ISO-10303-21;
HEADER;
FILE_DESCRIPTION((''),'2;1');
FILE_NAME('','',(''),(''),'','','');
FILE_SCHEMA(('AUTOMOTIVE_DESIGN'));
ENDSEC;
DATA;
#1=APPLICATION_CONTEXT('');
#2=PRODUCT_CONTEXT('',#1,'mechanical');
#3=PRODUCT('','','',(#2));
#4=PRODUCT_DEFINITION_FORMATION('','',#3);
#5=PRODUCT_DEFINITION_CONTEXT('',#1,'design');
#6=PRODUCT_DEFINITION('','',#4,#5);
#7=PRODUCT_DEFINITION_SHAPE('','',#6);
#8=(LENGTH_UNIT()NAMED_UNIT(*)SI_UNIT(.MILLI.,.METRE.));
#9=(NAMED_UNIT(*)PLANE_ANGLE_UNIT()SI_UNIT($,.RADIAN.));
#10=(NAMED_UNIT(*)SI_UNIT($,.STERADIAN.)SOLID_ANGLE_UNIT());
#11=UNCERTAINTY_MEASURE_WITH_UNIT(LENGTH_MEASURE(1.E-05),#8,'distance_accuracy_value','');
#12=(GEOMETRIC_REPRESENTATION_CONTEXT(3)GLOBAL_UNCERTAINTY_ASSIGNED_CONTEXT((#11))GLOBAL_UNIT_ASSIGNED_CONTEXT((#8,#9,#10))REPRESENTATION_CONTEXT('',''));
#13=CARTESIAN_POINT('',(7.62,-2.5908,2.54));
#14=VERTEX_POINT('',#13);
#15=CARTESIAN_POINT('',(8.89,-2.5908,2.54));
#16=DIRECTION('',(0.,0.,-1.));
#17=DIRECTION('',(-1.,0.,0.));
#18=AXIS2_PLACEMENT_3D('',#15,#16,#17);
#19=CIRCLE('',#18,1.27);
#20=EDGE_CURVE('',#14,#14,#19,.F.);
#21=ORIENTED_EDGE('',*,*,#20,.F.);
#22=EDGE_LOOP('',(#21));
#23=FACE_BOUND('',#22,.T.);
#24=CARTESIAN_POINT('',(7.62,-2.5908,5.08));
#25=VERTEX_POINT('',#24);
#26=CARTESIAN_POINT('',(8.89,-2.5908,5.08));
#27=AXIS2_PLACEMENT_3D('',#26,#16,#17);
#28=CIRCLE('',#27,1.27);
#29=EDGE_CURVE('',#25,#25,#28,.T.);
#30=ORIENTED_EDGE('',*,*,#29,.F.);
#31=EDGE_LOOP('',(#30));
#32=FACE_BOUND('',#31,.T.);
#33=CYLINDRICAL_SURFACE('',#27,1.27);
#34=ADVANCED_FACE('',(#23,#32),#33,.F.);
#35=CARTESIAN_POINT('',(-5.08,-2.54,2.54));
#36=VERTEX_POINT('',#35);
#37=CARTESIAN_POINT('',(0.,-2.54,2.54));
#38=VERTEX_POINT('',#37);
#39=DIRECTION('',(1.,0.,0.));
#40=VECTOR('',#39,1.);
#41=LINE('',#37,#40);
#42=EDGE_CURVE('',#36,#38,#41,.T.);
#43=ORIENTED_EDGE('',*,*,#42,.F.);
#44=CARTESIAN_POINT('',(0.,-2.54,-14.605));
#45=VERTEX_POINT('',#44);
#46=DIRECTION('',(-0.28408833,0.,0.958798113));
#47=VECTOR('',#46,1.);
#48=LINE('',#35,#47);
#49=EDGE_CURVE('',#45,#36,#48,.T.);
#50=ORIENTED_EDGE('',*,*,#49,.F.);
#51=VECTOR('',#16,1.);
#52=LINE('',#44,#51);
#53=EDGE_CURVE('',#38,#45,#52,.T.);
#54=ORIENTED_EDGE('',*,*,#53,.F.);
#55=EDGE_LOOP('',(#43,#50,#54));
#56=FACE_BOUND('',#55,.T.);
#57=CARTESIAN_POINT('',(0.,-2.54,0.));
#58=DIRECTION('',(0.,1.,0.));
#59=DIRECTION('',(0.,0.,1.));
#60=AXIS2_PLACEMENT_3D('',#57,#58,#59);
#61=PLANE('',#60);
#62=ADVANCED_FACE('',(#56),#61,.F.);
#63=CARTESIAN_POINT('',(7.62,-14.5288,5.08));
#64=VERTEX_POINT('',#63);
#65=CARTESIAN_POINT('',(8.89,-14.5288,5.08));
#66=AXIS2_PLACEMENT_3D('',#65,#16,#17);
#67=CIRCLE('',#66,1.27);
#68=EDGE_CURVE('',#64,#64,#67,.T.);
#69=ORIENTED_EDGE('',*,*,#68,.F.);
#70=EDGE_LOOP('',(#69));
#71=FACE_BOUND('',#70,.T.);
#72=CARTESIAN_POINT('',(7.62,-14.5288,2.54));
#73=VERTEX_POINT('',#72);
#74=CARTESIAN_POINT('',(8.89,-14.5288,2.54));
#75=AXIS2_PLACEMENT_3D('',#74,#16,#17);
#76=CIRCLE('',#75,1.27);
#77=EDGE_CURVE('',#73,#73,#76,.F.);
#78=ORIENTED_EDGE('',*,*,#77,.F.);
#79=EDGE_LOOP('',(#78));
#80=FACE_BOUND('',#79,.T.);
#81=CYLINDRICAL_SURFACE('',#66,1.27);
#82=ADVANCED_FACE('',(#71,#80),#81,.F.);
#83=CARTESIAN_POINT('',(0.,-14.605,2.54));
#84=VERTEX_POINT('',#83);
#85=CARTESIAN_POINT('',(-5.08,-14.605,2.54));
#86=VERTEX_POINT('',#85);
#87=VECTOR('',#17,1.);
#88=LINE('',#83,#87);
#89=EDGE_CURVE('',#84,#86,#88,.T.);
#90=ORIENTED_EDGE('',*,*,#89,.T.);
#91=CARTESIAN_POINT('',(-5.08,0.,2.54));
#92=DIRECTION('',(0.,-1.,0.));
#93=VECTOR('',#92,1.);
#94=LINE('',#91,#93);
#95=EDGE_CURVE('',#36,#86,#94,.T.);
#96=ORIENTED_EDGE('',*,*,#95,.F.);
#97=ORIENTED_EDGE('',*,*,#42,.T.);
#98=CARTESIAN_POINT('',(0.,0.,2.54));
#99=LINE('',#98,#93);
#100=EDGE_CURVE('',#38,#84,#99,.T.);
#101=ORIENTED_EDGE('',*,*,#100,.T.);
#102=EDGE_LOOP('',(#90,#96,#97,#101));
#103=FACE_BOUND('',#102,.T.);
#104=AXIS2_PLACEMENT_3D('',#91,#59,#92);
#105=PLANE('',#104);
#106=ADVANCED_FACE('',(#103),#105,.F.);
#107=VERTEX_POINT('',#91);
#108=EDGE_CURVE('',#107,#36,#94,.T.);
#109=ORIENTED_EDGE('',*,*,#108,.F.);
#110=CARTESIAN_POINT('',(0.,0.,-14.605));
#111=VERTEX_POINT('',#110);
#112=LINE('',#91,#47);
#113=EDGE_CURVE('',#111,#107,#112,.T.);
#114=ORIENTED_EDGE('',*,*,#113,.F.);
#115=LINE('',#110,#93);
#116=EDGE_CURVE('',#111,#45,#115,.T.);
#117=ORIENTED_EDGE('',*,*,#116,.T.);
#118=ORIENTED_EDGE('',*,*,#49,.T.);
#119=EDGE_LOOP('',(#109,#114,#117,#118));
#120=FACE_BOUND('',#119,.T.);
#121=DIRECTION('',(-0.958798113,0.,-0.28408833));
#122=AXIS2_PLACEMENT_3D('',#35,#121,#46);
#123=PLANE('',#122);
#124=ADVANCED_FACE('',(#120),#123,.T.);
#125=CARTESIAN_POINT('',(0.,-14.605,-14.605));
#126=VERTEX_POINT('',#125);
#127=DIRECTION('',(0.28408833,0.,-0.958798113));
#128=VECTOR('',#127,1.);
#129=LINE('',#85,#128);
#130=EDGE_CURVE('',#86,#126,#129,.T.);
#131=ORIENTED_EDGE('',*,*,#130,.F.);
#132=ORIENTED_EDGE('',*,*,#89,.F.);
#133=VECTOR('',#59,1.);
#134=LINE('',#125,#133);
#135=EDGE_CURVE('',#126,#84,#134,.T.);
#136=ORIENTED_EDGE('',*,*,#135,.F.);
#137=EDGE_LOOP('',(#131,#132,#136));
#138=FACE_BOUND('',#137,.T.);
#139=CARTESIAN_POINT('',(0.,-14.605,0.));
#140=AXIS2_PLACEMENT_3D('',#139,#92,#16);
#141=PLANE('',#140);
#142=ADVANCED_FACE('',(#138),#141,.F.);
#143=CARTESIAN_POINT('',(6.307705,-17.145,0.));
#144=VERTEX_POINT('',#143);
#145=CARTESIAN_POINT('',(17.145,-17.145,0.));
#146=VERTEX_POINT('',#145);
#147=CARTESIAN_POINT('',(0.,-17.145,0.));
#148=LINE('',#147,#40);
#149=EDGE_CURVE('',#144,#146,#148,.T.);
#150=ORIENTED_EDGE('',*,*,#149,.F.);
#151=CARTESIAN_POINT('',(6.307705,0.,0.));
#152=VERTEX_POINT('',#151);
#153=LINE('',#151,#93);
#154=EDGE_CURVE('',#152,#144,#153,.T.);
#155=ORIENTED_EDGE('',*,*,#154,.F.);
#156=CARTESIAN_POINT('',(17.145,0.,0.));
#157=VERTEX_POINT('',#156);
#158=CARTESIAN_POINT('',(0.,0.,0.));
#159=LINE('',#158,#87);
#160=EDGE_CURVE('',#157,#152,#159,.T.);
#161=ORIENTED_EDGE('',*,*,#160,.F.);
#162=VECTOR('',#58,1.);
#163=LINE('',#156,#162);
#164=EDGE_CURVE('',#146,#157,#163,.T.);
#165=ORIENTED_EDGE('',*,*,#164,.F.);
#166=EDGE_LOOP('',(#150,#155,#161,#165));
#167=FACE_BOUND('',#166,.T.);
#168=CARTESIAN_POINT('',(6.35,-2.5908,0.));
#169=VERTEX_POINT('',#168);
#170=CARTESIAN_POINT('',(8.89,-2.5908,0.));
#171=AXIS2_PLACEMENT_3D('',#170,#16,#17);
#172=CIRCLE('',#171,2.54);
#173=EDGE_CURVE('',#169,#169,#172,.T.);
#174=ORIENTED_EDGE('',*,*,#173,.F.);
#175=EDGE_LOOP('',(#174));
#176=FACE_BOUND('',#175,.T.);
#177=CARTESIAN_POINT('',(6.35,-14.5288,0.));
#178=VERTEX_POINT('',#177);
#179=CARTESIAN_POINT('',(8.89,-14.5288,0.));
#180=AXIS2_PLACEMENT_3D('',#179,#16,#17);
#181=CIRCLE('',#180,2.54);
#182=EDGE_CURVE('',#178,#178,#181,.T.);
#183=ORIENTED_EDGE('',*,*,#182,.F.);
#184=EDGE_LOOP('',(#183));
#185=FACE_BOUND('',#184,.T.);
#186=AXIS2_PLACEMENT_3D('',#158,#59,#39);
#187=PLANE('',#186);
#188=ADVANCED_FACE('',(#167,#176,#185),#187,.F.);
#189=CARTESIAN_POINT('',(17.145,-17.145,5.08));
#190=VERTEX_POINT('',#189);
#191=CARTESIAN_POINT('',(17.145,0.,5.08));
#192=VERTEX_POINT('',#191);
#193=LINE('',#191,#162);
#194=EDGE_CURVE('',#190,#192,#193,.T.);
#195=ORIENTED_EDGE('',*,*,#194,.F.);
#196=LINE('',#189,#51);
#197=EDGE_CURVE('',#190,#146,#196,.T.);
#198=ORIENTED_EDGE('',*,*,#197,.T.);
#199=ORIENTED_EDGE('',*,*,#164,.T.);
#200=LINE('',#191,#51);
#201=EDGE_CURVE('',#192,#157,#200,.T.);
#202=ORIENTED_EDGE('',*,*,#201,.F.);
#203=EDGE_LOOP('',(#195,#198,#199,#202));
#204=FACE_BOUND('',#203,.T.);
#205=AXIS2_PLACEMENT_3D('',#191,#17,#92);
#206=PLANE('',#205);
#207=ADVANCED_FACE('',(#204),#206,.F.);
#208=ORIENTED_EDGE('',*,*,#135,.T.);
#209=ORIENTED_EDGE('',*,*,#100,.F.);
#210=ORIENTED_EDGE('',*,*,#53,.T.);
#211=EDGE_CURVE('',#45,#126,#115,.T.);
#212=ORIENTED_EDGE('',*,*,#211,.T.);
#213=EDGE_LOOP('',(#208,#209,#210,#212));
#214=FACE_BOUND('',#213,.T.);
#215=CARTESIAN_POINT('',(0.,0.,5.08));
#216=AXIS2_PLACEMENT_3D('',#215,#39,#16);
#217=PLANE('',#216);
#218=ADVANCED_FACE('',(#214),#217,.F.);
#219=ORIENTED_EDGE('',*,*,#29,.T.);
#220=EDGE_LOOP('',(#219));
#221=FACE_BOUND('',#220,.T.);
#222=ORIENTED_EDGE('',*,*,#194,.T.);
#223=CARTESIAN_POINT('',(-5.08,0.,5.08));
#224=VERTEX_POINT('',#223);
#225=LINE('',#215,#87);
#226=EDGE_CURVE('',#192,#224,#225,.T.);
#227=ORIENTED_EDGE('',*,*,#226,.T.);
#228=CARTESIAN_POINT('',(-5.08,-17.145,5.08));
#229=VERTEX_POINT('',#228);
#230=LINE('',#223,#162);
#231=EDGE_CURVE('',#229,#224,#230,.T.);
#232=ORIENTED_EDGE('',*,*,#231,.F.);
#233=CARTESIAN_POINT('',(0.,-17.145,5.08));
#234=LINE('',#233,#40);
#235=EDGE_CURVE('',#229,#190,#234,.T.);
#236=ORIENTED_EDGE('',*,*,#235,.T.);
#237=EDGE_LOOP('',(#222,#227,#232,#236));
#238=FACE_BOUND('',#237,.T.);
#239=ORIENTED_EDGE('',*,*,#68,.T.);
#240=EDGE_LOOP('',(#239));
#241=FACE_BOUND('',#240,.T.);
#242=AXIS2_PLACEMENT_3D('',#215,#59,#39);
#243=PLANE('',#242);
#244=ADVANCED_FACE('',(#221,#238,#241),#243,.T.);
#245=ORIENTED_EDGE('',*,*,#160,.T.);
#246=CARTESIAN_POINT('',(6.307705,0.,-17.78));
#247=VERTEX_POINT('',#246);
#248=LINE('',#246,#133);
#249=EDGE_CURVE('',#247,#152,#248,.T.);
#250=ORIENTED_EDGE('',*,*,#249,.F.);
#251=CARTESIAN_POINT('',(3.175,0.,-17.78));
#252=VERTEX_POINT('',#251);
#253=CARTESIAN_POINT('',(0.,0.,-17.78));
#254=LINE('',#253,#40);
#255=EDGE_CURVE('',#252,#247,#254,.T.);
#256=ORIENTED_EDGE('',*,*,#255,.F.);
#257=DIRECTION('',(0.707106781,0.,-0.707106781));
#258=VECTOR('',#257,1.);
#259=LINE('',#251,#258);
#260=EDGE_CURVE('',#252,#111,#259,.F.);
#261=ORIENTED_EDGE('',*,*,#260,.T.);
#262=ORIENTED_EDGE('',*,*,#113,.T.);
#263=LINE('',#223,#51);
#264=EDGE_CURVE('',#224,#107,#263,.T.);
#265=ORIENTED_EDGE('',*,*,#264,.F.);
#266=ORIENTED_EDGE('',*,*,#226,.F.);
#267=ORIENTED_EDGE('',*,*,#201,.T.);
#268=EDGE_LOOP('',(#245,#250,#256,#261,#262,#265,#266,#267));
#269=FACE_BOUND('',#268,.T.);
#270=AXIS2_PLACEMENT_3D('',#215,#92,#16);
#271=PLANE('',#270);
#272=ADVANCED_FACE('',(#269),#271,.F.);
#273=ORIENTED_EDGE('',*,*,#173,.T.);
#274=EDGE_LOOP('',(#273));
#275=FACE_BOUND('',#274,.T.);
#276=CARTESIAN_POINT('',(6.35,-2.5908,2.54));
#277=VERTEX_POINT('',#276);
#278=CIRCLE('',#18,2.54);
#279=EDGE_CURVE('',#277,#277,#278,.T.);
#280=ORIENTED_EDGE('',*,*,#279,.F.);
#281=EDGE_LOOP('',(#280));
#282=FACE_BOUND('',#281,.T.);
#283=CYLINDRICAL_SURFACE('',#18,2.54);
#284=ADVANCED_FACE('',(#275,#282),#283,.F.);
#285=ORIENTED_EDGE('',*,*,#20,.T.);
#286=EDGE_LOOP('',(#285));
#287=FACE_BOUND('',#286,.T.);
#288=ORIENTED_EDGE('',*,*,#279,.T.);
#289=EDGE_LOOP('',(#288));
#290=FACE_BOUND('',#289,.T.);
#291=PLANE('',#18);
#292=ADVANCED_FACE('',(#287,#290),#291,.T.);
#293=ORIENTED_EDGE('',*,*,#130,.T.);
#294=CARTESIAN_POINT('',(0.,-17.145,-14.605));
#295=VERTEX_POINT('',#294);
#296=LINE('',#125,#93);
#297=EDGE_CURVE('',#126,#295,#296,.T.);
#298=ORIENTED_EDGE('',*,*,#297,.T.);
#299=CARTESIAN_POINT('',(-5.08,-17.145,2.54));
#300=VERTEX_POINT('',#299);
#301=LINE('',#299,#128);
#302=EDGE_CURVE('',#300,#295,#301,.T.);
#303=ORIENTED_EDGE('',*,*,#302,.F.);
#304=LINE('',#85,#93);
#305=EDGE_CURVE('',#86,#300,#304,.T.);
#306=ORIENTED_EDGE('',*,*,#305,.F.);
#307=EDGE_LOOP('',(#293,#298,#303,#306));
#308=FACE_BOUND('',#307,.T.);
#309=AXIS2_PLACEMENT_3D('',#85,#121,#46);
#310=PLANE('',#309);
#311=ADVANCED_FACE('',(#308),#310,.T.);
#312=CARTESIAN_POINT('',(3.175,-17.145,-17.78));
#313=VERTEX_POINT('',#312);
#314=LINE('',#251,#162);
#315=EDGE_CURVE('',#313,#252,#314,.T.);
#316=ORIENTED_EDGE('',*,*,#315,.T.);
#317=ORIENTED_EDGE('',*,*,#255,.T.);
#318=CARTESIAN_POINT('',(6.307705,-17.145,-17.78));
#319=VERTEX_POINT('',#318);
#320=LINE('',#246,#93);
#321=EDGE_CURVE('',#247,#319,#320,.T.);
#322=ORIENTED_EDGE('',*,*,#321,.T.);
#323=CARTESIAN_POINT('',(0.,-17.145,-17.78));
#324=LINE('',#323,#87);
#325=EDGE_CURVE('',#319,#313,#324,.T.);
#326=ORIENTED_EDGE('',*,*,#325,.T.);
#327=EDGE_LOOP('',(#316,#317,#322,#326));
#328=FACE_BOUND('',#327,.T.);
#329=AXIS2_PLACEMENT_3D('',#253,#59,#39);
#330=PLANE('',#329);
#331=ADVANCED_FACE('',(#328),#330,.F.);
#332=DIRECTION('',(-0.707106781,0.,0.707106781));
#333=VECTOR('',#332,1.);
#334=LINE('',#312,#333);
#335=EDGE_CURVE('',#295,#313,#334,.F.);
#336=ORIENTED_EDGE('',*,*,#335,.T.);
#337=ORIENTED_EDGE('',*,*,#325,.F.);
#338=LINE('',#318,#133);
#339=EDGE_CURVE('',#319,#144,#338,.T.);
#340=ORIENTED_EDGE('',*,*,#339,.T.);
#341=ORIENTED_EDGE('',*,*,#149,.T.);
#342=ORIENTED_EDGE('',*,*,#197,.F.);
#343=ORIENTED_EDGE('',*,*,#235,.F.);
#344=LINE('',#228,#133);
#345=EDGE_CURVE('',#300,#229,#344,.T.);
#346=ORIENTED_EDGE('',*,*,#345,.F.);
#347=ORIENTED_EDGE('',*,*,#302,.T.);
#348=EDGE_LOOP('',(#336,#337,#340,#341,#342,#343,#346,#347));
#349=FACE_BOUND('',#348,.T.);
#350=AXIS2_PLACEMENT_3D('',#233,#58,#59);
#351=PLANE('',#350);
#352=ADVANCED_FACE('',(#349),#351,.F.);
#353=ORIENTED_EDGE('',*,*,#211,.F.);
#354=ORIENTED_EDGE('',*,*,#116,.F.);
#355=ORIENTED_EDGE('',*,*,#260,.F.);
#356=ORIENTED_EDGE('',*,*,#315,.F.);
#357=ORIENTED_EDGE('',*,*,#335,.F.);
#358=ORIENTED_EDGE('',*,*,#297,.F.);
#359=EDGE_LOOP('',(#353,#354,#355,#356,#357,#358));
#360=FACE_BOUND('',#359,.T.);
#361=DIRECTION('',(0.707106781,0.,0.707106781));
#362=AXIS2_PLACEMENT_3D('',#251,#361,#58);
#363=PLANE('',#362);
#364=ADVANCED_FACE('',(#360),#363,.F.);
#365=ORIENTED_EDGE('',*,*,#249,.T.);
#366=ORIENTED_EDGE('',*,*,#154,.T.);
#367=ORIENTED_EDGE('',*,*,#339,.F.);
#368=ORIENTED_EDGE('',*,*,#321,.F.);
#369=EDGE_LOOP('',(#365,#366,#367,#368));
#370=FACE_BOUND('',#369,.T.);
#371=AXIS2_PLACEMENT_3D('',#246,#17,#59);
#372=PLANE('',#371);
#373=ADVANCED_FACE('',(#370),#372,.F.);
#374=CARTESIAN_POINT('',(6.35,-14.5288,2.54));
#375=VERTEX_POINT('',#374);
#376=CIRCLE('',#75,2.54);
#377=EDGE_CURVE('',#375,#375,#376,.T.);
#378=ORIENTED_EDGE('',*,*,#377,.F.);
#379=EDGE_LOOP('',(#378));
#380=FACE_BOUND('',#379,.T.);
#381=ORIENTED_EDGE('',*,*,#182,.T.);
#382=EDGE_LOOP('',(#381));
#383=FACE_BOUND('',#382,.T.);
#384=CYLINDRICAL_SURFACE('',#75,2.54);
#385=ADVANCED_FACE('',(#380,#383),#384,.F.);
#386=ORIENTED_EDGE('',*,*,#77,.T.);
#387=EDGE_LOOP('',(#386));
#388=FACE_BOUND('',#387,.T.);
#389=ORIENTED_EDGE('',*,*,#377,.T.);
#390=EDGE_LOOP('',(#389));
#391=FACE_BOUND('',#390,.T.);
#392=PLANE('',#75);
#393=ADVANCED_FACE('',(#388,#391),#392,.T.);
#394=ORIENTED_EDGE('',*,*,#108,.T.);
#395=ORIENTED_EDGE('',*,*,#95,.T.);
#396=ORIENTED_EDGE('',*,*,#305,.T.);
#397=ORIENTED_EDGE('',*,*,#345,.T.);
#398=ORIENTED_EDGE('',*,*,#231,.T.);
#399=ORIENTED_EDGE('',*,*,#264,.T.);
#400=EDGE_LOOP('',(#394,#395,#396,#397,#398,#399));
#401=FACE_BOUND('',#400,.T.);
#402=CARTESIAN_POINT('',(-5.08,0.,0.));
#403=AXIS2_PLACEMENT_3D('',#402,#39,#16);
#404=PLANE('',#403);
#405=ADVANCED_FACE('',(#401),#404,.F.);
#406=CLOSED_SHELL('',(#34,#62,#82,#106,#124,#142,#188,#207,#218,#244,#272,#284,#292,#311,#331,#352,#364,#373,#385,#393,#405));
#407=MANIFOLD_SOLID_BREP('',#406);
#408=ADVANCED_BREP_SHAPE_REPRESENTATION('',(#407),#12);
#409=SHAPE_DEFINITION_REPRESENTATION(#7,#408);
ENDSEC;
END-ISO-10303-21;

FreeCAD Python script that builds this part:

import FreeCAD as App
import Part
import Sketcher
Q = App.Units.Quantity


def edges_at(feature, points):
    """Names of the edges that pass closest to the given points."""
    edges = feature.Shape.Edges
    near = lambda p: min(range(len(edges)), key=lambda i: edges[i].distToShape(Part.Vertex(*p))[0])
    return sorted({f"Edge{near(p) + 1}" for p in points})


def add_polygon(sketch, points):
    """Adds a closed chain of lines whose ends are joined by coincident constraints."""
    first, n = sketch.GeometryCount, len(points)
    for a, b in zip(points, points[1:] + points[:1]):
        sketch.addGeometry(Part.LineSegment(App.Vector(*a, 0), App.Vector(*b, 0)), False)
    for i in range(n):
        sketch.addConstraint(Sketcher.Constraint("Coincident", first + i, 2, first + (i + 1) % n, 1))

doc = App.newDocument("Part")
body = doc.addObject("PartDesign::Body", "Body")

# Sketch on XY plane
sketch1 = doc.addObject("Sketcher::SketchObject", "Sketch")
body.addObject(sketch1)
sketch1.AttachmentSupport = (doc.XY_Plane, [""])
sketch1.MapMode = "FlatFace"
add_polygon(sketch1, [(0, 0), (0, -17), (17, -17), (17, 0)])  # lines 0-3
sketch1.addConstraint(Sketcher.Constraint("Vertical", 0))
sketch1.addConstraint(Sketcher.Constraint("Horizontal", 1))
sketch1.addConstraint(Sketcher.Constraint("Vertical", 2))
sketch1.addConstraint(Sketcher.Constraint("Horizontal", 3))
sketch1.addConstraint(Sketcher.Constraint("Coincident", 3, 2, -1, 1))
sketch1.addConstraint(Sketcher.Constraint("Equal", 3, 0))
sketch1.addConstraint(Sketcher.Constraint("DistanceX", 1, 1, 1, 2, Q("0.675 in")))
pad1 = doc.addObject("PartDesign::Pad", "Pad")
body.addObject(pad1)
pad1.Profile = sketch1
pad1.Length = Q("0.2 in")

# Sketch on XY plane
sketch2 = doc.addObject("Sketcher::SketchObject", "Sketch001")
body.addObject(sketch2)
sketch2.AttachmentSupport = (doc.XY_Plane, [""])
sketch2.MapMode = "FlatFace"
sketch2.addGeometry(Part.Circle(App.Vector(8.9, -2.6, 0), App.Vector(0, 0, 1), 1.3), False)
sketch2.addGeometry(Part.Circle(App.Vector(8.9, -14.5, 0), App.Vector(0, 0, 1), 1.3), False)
sketch2.addConstraint(Sketcher.Constraint("Equal", 0, 1))
sketch2.addConstraint(Sketcher.Constraint("Vertical", 0, 3, 1, 3))
sketch2.addConstraint(Sketcher.Constraint("Diameter", 0, Q("0.1 in")))
sketch2.addConstraint(Sketcher.Constraint("DistanceX", -1, 1, 0, 3, Q("0.35 in")))
sketch2.addConstraint(Sketcher.Constraint("DistanceY", 1, 3, 0, 3, Q("0.47 in")))
sketch2.addConstraint(Sketcher.Constraint("DistanceY", 0, 3, -1, 1, Q("0.102 in")))
pocket1 = doc.addObject("PartDesign::Pocket", "Pocket")
body.addObject(pocket1)
pocket1.Profile = sketch2
pocket1.Type = "ThroughAll"
pocket1.Reversed = True

# Sketch on XY plane
sketch3 = doc.addObject("Sketcher::SketchObject", "Sketch002")
body.addObject(sketch3)
sketch3.AttachmentSupport = (doc.XY_Plane, [""])
sketch3.MapMode = "FlatFace"
sketch3.addGeometry(Part.Circle(App.Vector(8.9, -2.6, 0), App.Vector(0, 0, 1), 2.5), False)
sketch3.addGeometry(Part.Circle(App.Vector(8.9, -14.5, 0), App.Vector(0, 0, 1), 2.5), False)
sketch3.addConstraint(Sketcher.Constraint("Equal", 0, 1))
sketch3.addConstraint(Sketcher.Constraint("Vertical", 0, 3, 1, 3))
sketch3.addConstraint(Sketcher.Constraint("Diameter", 0, Q("0.2 in")))
sketch3.addConstraint(Sketcher.Constraint("DistanceX", -1, 1, 0, 3, Q("0.35 in")))
sketch3.addConstraint(Sketcher.Constraint("DistanceY", 1, 3, 0, 3, Q("0.47 in")))
sketch3.addConstraint(Sketcher.Constraint("DistanceY", 0, 3, -1, 1, Q("0.102 in")))
pocket2 = doc.addObject("PartDesign::Pocket", "Pocket001")
body.addObject(pocket2)
pocket2.Profile = sketch3
pocket2.Length = Q("0.1 in")
pocket2.Reversed = True

# Sketch on XY plane
sketch4 = doc.addObject("Sketcher::SketchObject", "Sketch003")
body.addObject(sketch4)
sketch4.AttachmentSupport = (doc.XY_Plane, [""])
sketch4.MapMode = "FlatFace"
add_polygon(sketch4, [(6, 0), (6, -17), (0, -17), (0, 0)])  # lines 0-3
sketch4.addConstraint(Sketcher.Constraint("Vertical", 0))
sketch4.addConstraint(Sketcher.Constraint("Horizontal", 1))
sketch4.addConstraint(Sketcher.Constraint("Vertical", 2))
sketch4.addConstraint(Sketcher.Constraint("Horizontal", 3))
sketch4.addConstraint(Sketcher.Constraint("Coincident", 2, 2, -1, 1))
sketch4.addConstraint(Sketcher.Constraint("DistanceY", 0, 2, 0, 1, Q("0.675 in")))
sketch4.addConstraint(Sketcher.Constraint("DistanceX", 1, 2, 1, 1, 6.307705))
pad2 = doc.addObject("PartDesign::Pad", "Pad001")
body.addObject(pad2)
pad2.Profile = sketch4
pad2.Length = Q("0.7 in")
pad2.Reversed = True

# Sketch on YZ plane
sketch5 = doc.addObject("Sketcher::SketchObject", "Sketch004")
body.addObject(sketch5)
sketch5.AttachmentSupport = (doc.YZ_Plane, [""])
sketch5.MapMode = "FlatFace"
add_polygon(sketch5, [(0, 2.5), (-17.1, 2.5), (-17.1, 5.1), (0, 5.1)])  # lines 0-3
sketch5.addConstraint(Sketcher.Constraint("Horizontal", 0))
sketch5.addConstraint(Sketcher.Constraint("Vertical", 1))
sketch5.addConstraint(Sketcher.Constraint("Horizontal", 2))
sketch5.addConstraint(Sketcher.Constraint("Vertical", 3))
sketch5.addConstraint(Sketcher.Constraint("PointOnObject", 2, 2, -2))
sketch5.addConstraint(Sketcher.Constraint("DistanceY", 1, 1, 1, 2, Q("0.1 in")))
sketch5.addConstraint(Sketcher.Constraint("DistanceY", -1, 1, 0, 2, Q("0.1 in")))
sketch5.addConstraint(Sketcher.Constraint("DistanceX", 0, 2, 0, 1, Q("0.675 in")))
pad3 = doc.addObject("PartDesign::Pad", "Pad002")
body.addObject(pad3)
pad3.Profile = sketch5
pad3.Length = Q("0.2 in")
pad3.Reversed = True
doc.recompute()

chamfer = doc.addObject("PartDesign::Chamfer", "Chamfer")
body.addObject(chamfer)
chamfer.Base = (pad3, edges_at(pad3, [(0, -8.572, -17.78)]))
chamfer.Size = Q("0.125 in")

# Sketch on XZ plane
sketch6 = doc.addObject("Sketcher::SketchObject", "Sketch005")
body.addObject(sketch6)
sketch6.AttachmentSupport = (doc.XZ_Plane, [""])
sketch6.MapMode = "FlatFace"
add_polygon(sketch6, [(0, -15), (-5, 3), (0, 3)])  # lines 0-2
sketch6.addConstraint(Sketcher.Constraint("Horizontal", 1))
sketch6.addConstraint(Sketcher.Constraint("Vertical", 2))
sketch6.addConstraint(Sketcher.Constraint("PointOnObject", 1, 2, -2))
sketch6.addConstraint(Sketcher.Constraint("DistanceX", 1, 1, 1, 2, Q("0.2 in")))
sketch6.addConstraint(Sketcher.Constraint("DistanceY", -1, 1, 0, 2, Q("0.1 in")))
sketch6.addConstraint(Sketcher.Constraint("DistanceY", 2, 2, 2, 1, Q("0.675 in")))
pad4 = doc.addObject("PartDesign::Pad", "Pad003")
body.addObject(pad4)
pad4.Profile = sketch6
pad4.Length = Q("0.1 in")

# Sketch on XZ plane
sketch7 = doc.addObject("Sketcher::SketchObject", "Sketch006")
body.addObject(sketch7)
sketch7.AttachmentSupport = (doc.XZ_Plane, [""])
sketch7.MapMode = "FlatFace"
sketch7.AttachmentOffset = App.Placement(App.Vector(0, 0, 0.675 * 25.4), App.Rotation())
add_polygon(sketch7, [(0, 3), (-5, 3), (0, -15)])  # lines 0-2
sketch7.addConstraint(Sketcher.Constraint("Horizontal", 0))
sketch7.addConstraint(Sketcher.Constraint("Vertical", 2))
sketch7.addConstraint(Sketcher.Constraint("PointOnObject", 1, 2, -2))
sketch7.addConstraint(Sketcher.Constraint("DistanceX", 0, 2, 0, 1, Q("0.2 in")))
sketch7.addConstraint(Sketcher.Constraint("DistanceY", -1, 1, 0, 2, Q("0.1 in")))
sketch7.addConstraint(Sketcher.Constraint("DistanceY", 2, 1, 2, 2, Q("0.675 in")))
pad5 = doc.addObject("PartDesign::Pad", "Pad004")
body.addObject(pad5)
pad5.Profile = sketch7
pad5.Length = Q("0.1 in")
pad5.Reversed = True

doc.recompute()
